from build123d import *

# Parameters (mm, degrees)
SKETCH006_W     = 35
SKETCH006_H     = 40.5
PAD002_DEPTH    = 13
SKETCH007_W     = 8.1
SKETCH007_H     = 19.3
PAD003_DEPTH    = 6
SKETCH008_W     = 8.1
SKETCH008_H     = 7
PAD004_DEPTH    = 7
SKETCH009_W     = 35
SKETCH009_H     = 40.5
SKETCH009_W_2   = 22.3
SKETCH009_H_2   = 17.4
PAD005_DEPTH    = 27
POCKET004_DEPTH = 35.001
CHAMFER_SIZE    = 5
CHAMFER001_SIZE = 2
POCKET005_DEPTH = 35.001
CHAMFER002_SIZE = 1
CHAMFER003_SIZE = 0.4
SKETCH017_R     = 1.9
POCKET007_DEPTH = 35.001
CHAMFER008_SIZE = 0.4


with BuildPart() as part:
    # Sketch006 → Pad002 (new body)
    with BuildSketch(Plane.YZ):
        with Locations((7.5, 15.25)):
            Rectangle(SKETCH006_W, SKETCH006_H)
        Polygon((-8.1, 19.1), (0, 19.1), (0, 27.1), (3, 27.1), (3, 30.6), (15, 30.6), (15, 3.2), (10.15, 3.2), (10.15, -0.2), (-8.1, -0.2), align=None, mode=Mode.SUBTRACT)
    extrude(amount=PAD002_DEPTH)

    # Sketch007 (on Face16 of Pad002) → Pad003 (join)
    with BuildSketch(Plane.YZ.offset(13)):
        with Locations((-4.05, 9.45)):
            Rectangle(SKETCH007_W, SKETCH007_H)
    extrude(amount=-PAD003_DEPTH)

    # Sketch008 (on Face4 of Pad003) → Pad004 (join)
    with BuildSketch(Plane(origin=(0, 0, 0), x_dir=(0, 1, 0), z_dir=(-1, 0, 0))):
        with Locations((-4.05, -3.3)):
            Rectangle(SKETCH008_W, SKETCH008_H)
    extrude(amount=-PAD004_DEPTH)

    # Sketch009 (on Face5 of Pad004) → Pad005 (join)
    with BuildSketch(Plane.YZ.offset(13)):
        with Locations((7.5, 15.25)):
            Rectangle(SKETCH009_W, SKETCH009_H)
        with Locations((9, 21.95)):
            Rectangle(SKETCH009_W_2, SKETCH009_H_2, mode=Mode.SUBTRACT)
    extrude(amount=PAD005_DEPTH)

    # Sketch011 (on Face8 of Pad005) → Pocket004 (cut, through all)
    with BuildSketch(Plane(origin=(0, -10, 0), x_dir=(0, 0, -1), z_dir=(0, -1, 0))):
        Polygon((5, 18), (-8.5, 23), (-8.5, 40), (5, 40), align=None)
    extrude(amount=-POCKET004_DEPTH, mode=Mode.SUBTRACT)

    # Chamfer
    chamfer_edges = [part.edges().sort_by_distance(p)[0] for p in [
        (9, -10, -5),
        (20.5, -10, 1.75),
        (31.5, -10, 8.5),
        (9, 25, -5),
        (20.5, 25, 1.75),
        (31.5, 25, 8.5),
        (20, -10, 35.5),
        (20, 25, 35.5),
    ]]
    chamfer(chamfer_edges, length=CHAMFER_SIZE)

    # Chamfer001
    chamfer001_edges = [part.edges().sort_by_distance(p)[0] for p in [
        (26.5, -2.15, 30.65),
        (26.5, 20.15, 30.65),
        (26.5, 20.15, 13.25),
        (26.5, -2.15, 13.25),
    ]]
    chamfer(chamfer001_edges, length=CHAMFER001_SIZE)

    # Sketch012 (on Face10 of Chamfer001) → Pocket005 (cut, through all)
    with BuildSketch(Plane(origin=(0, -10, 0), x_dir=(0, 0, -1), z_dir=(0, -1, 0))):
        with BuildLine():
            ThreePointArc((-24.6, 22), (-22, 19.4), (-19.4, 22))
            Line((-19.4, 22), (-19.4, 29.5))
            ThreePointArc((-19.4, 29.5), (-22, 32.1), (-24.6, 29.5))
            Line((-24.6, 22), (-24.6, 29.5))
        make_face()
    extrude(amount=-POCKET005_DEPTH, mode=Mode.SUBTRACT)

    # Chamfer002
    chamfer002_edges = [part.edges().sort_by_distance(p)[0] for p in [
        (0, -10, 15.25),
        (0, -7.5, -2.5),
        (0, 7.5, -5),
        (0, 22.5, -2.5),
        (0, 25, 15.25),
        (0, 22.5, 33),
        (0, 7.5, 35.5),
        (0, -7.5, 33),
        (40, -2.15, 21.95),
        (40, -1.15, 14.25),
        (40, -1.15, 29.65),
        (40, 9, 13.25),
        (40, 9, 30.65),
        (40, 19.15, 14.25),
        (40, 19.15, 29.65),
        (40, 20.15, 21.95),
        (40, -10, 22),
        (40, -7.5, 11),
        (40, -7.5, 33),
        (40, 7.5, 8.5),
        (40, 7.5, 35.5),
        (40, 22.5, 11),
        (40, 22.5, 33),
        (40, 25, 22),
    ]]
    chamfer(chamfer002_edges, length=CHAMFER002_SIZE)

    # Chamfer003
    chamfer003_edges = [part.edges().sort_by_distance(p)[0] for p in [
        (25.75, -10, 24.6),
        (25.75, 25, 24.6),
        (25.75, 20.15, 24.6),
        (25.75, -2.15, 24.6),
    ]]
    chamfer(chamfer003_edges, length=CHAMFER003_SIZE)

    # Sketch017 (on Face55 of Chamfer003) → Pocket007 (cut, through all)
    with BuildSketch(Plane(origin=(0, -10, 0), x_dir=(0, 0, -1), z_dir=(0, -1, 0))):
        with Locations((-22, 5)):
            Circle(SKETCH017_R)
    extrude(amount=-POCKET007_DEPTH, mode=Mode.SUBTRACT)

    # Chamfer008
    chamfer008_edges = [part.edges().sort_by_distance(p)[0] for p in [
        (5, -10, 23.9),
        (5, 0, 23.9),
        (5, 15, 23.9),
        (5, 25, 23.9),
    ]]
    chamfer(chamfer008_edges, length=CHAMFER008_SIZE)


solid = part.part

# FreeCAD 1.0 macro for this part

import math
import FreeCAD as App
import Part
import Sketcher
from FreeCAD import Vector


def edges_at(feature, points):
    """Names of the edges that pass closest to the given points."""
    edges = feature.Shape.Edges
    near = lambda p: min(range(len(edges)), key=lambda i: edges[i].distToShape(Part.Vertex(*p))[0])
    return sorted({f"Edge{near(p) + 1}" for p in points})


def add_polygon(sketch, points):
    """Adds a closed chain of lines whose ends are joined by coincident constraints."""
    first, n = sketch.GeometryCount, len(points)
    for a, b in zip(points, points[1:] + points[:1]):
        sketch.addGeometry(Part.LineSegment(App.Vector(*a, 0), App.Vector(*b, 0)), False)
    for i in range(n):
        sketch.addConstraint(Sketcher.Constraint("Coincident", first + i, 2, first + (i + 1) % n, 1))

doc = App.newDocument("Part")
body = doc.addObject("PartDesign::Body", "Body")

# Sketch on YZ plane
sketch1 = body.newObject("Sketcher::SketchObject", "Sketch")
sketch1.AttachmentSupport = (doc.getObject("YZ_Plane"), [""])
sketch1.MapMode = "FlatFace"
add_polygon(sketch1, [(-10, 35.5), (-10, -5), (25, -5), (25, 35.5)])  # lines 0-3
add_polygon(sketch1, [(-8.1, -0.2), (-8.1, 19.1), (0, 19.1), (0, 27.1), (3, 27.1), (3, 30.6), (15, 30.6), (15, 3.2), (10.15, 3.2), (10.15, -0.2)])  # lines 4-13
sketch1.addConstraint(Sketcher.Constraint("Vertical", 0))
sketch1.addConstraint(Sketcher.Constraint("Horizontal", 1))
sketch1.addConstraint(Sketcher.Constraint("Vertical", 2))
sketch1.addConstraint(Sketcher.Constraint("Horizontal", 3))
sketch1.addConstraint(Sketcher.Constraint("Vertical", 4))
sketch1.addConstraint(Sketcher.Constraint("Horizontal", 5))
sketch1.addConstraint(Sketcher.Constraint("Vertical", 6))
sketch1.addConstraint(Sketcher.Constraint("Horizontal", 7))
sketch1.addConstraint(Sketcher.Constraint("Vertical", 8))
sketch1.addConstraint(Sketcher.Constraint("Horizontal", 9))
sketch1.addConstraint(Sketcher.Constraint("Vertical", 10))
sketch1.addConstraint(Sketcher.Constraint("Horizontal", 11))
sketch1.addConstraint(Sketcher.Constraint("Vertical", 12))
sketch1.addConstraint(Sketcher.Constraint("Horizontal", 13))
sketch1.addConstraint(Sketcher.Constraint("PointOnObject", 5, 2, -2))
sketch1.addConstraint(Sketcher.Constraint("DistanceX", 1, 1, 1, 2, 35.0))
sketch1.addConstraint(Sketcher.Constraint("DistanceX", 7, 1, 7, 2, 3.0))
sketch1.addConstraint(Sketcher.Constraint("DistanceX", 9, 1, 9, 2, 12.0))
sketch1.addConstraint(Sketcher.Constraint("DistanceY", 6, 1, 6, 2, 8.0))
sketch1.addConstraint(Sketcher.Constraint("DistanceX", 5, 1, 5, 2, 8.1))
sketch1.addConstraint(Sketcher.Constraint("DistanceY", 0, 2, 0, 1, 40.5))
sketch1.addConstraint(Sketcher.Constraint("DistanceY", 4, 1, 4, 2, 19.3))
sketch1.addConstraint(Sketcher.Constraint("DistanceY", 8, 1, 8, 2, 3.5))
sketch1.addConstraint(Sketcher.Constraint("DistanceY", 10, 2, 10, 1, 27.4))
sketch1.addConstraint(Sketcher.Constraint("DistanceX", 0, 2, -1, 1, 10.0))
sketch1.addConstraint(Sketcher.Constraint("DistanceY", 0, 2, -1, 1, 5.0))
sketch1.addConstraint(Sketcher.Constraint("DistanceX", 11, 2, 11, 1, 4.85))
sketch1.addConstraint(Sketcher.Constraint("DistanceY", -1, 1, 4, 2, 19.1))
pad1 = body.newObject("PartDesign::Pad", "Pad")
pad1.Profile = sketch1
pad1.Length = 13

# Sketch on YZ plane
sketch2 = body.newObject("Sketcher::SketchObject", "Sketch001")
sketch2.AttachmentSupport = (doc.getObject("YZ_Plane"), [""])
sketch2.MapMode = "FlatFace"
sketch2.AttachmentOffset = App.Placement(Vector(0, 0, 13), App.Rotation())
add_polygon(sketch2, [(-8.1, 19.1), (-8.1, -0.2), (0, -0.2), (0, 19.1)])  # lines 0-3
sketch2.addConstraint(Sketcher.Constraint("Vertical", 0))
sketch2.addConstraint(Sketcher.Constraint("Horizontal", 1))
sketch2.addConstraint(Sketcher.Constraint("Vertical", 2))
sketch2.addConstraint(Sketcher.Constraint("Horizontal", 3))
sketch2.addConstraint(Sketcher.Constraint("PointOnObject", 1, 2, -2))
sketch2.addConstraint(Sketcher.Constraint("DistanceX", 1, 1, 1, 2, 8.1))
sketch2.addConstraint(Sketcher.Constraint("DistanceY", 0, 2, 0, 1, 19.3))
sketch2.addConstraint(Sketcher.Constraint("DistanceY", 0, 2, -1, 1, 0.2))
pad2 = body.newObject("PartDesign::Pad", "Pad001")
pad2.Profile = sketch2
pad2.Length = 6
pad2.Reversed = True

# Sketch on YZ plane
sketch3 = body.newObject("Sketcher::SketchObject", "Sketch002")
sketch3.AttachmentSupport = (doc.getObject("YZ_Plane"), [""])
sketch3.MapMode = "FlatFace"
add_polygon(sketch3, [(-8.1, -0.2), (-8.1, 6.8), (0, 6.8), (0, -0.2)])  # lines 0-3
sketch3.addConstraint(Sketcher.Constraint("Vertical", 0))
sketch3.addConstraint(Sketcher.Constraint("Horizontal", 1))
sketch3.addConstraint(Sketcher.Constraint("Vertical", 2))
sketch3.addConstraint(Sketcher.Constraint("Horizontal", 3))
sketch3.addConstraint(Sketcher.Constraint("PointOnObject", 1, 2, -2))
sketch3.addConstraint(Sketcher.Constraint("DistanceY", 0, 1, 0, 2, 7.0))
sketch3.addConstraint(Sketcher.Constraint("DistanceX", 1, 1, 1, 2, 8.1))
sketch3.addConstraint(Sketcher.Constraint("DistanceY", -1, 1, 0, 2, 6.8))
pad3 = body.newObject("PartDesign::Pad", "Pad002")
pad3.Profile = sketch3
pad3.Length = 7

# Sketch on YZ plane
sketch4 = body.newObject("Sketcher::SketchObject", "Sketch003")
sketch4.AttachmentSupport = (doc.getObject("YZ_Plane"), [""])
sketch4.MapMode = "FlatFace"
sketch4.AttachmentOffset = App.Placement(Vector(0, 0, 13), App.Rotation())
add_polygon(sketch4, [(-10, 35.5), (-10, -5), (25, -5), (25, 35.5)])  # lines 0-3
add_polygon(sketch4, [(20.15, 13.25), (-2.15, 13.25), (-2.15, 30.65), (20.15, 30.65)])  # lines 4-7
sketch4.addConstraint(Sketcher.Constraint("Vertical", 0))
sketch4.addConstraint(Sketcher.Constraint("Horizontal", 1))
sketch4.addConstraint(Sketcher.Constraint("Vertical", 2))
sketch4.addConstraint(Sketcher.Constraint("Horizontal", 3))
sketch4.addConstraint(Sketcher.Constraint("Horizontal", 4))
sketch4.addConstraint(Sketcher.Constraint("Vertical", 5))
sketch4.addConstraint(Sketcher.Constraint("Horizontal", 6))
sketch4.addConstraint(Sketcher.Constraint("Vertical", 7))
sketch4.addConstraint(Sketcher.Constraint("DistanceX", 1, 1, 1, 2, 35.0))
sketch4.addConstraint(Sketcher.Constraint("DistanceX", 4, 2, 4, 1, 22.3))
sketch4.addConstraint(Sketcher.Constraint("DistanceY", 0, 2, 0, 1, 40.5))
sketch4.addConstraint(Sketcher.Constraint("DistanceY", 5, 1, 5, 2, 17.4))
sketch4.addConstraint(Sketcher.Constraint("DistanceX", 0, 2, -1, 1, 10.0))
sketch4.addConstraint(Sketcher.Constraint("DistanceY", 0, 2, -1, 1, 5.0))
sketch4.addConstraint(Sketcher.Constraint("DistanceX", 4, 2, -1, 1, 2.15))
sketch4.addConstraint(Sketcher.Constraint("DistanceY", -1, 1, 4, 2, 13.25))
pad4 = body.newObject("PartDesign::Pad", "Pad003")
pad4.Profile = sketch4
pad4.Length = 27

# Sketch on XZ plane
sketch5 = body.newObject("Sketcher::SketchObject", "Sketch004")
sketch5.AttachmentSupport = (doc.getObject("XZ_Plane"), [""])
sketch5.MapMode = "FlatFace"
sketch5.AttachmentOffset = App.Placement(Vector(0, 0, 10), App.Rotation())
add_polygon(sketch5, [(23, 8.5), (18, -5), (40, -5), (40, 8.5)])  # lines 0-3
sketch5.addConstraint(Sketcher.Constraint("Horizontal", 1))
sketch5.addConstraint(Sketcher.Constraint("Vertical", 2))
sketch5.addConstraint(Sketcher.Constraint("Horizontal", 3))
sketch5.addConstraint(Sketcher.Constraint("DistanceX", 1, 1, 1, 2, 22.0))
sketch5.addConstraint(Sketcher.Constraint("DistanceX", 3, 2, 3, 1, 17.0))
sketch5.addConstraint(Sketcher.Constraint("DistanceY", 2, 1, 2, 2, 13.5))
sketch5.addConstraint(Sketcher.Constraint("DistanceX", -1, 1, 0, 2, 18.0))
sketch5.addConstraint(Sketcher.Constraint("DistanceY", 0, 2, -1, 1, 5.0))
pocket1 = body.newObject("PartDesign::Pocket", "Pocket")
pocket1.Profile = sketch5
pocket1.Type = "ThroughAll"
doc.recompute()

chamfer = body.newObject("PartDesign::Chamfer", "Chamfer")
chamfer.Base = (pocket1, edges_at(pocket1, [
    (9, -10, -5),
    (20.5, -10, 1.75),
    (31.5, -10, 8.5),
    (9, 25, -5),
    (20.5, 25, 1.75),
    (31.5, 25, 8.5),
    (20, -10, 35.5),
    (20, 25, 35.5),
]))
chamfer.Size = 5
doc.recompute()

chamfer2 = body.newObject("PartDesign::Chamfer", "Chamfer001")
chamfer2.Base = (chamfer, edges_at(chamfer, [
    (26.5, -2.15, 30.65),
    (26.5, 20.15, 30.65),
    (26.5, 20.15, 13.25),
    (26.5, -2.15, 13.25),
]))
chamfer2.Size = 2

# Sketch on XZ plane
sketch6 = body.newObject("Sketcher::SketchObject", "Sketch005")
sketch6.AttachmentSupport = (doc.getObject("XZ_Plane"), [""])
sketch6.MapMode = "FlatFace"
sketch6.AttachmentOffset = App.Placement(Vector(0, 0, 10), App.Rotation())
sketch6.addGeometry(Part.ArcOfCircle(Part.Circle(Vector(22, 22, 0), Vector(0, 0, 1), 2.6), math.radians(90), math.radians(270)), False)
sketch6.addGeometry(Part.LineSegment(Vector(22, 19.4, 0), Vector(29.5, 19.4, 0)), False)
sketch6.addGeometry(Part.ArcOfCircle(Part.Circle(Vector(29.5, 22, 0), Vector(0, 0, 1), 2.6), math.radians(-90), math.radians(90)), False)
sketch6.addGeometry(Part.LineSegment(Vector(29.5, 24.6, 0), Vector(22, 24.6, 0)), False)
sketch6.addConstraint(Sketcher.Constraint("Tangent", 0, 2, 1, 1))
sketch6.addConstraint(Sketcher.Constraint("Tangent", 1, 2, 2, 1))
sketch6.addConstraint(Sketcher.Constraint("Tangent", 2, 2, 3, 1))
sketch6.addConstraint(Sketcher.Constraint("Tangent", 3, 2, 0, 1))
sketch6.addConstraint(Sketcher.Constraint("Horizontal", 1))
sketch6.addConstraint(Sketcher.Constraint("Horizontal", 3))
sketch6.addConstraint(Sketcher.Constraint("Radius", 0, 2.6))
sketch6.addConstraint(Sketcher.Constraint("DistanceX", 1, 1, 1, 2, 7.5))
sketch6.addConstraint(Sketcher.Constraint("DistanceX", -1, 1, 0, 3, 22.0))
sketch6.addConstraint(Sketcher.Constraint("DistanceY", -1, 1, 0, 3, 22.0))
pocket2 = body.newObject("PartDesign::Pocket", "Pocket001")
pocket2.Profile = sketch6
pocket2.Type = "ThroughAll"
doc.recompute()

chamfer3 = body.newObject("PartDesign::Chamfer", "Chamfer002")
chamfer3.Base = (pocket2, edges_at(pocket2, [
    (0, -10, 15.25),
    (0, -7.5, -2.5),
    (0, 7.5, -5),
    (0, 22.5, -2.5),
    (0, 25, 15.25),
    (0, 22.5, 33),
    (0, 7.5, 35.5),
    (0, -7.5, 33),
    (40, -2.15, 21.95),
    (40, -1.15, 14.25),
    (40, -1.15, 29.65),
    (40, 9, 13.25),
    (40, 9, 30.65),
    (40, 19.15, 14.25),
    (40, 19.15, 29.65),
    (40, 20.15, 21.95),
    (40, -10, 22),
    (40, -7.5, 11),
    (40, -7.5, 33),
    (40, 7.5, 8.5),
    (40, 7.5, 35.5),
    (40, 22.5, 11),
    (40, 22.5, 33),
    (40, 25, 22),
]))
chamfer3.Size = 1
doc.recompute()

chamfer4 = body.newObject("PartDesign::Chamfer", "Chamfer003")
chamfer4.Base = (chamfer3, edges_at(chamfer3, [
    (25.75, -10, 24.6),
    (25.75, 25, 24.6),
    (25.75, 20.15, 24.6),
    (25.75, -2.15, 24.6),
]))
chamfer4.Size = 0.4

# Sketch on XZ plane
sketch7 = body.newObject("Sketcher::SketchObject", "Sketch006")
sketch7.AttachmentSupport = (doc.getObject("XZ_Plane"), [""])
sketch7.MapMode = "FlatFace"
sketch7.AttachmentOffset = App.Placement(Vector(0, 0, 10), App.Rotation())
sketch7.addGeometry(Part.Circle(Vector(5, 22, 0), Vector(0, 0, 1), 1.9), False)
sketch7.addConstraint(Sketcher.Constraint("Diameter", 0, 3.8))
sketch7.addConstraint(Sketcher.Constraint("DistanceX", -1, 1, 0, 3, 5.0))
sketch7.addConstraint(Sketcher.Constraint("DistanceY", -1, 1, 0, 3, 22.0))
pocket3 = body.newObject("PartDesign::Pocket", "Pocket002")
pocket3.Profile = sketch7
pocket3.Type = "ThroughAll"
doc.recompute()

chamfer5 = body.newObject("PartDesign::Chamfer", "Chamfer004")
chamfer5.Base = (pocket3, edges_at(pocket3, [
    (5, -10, 23.9),
    (5, 0, 23.9),
    (5, 15, 23.9),
    (5, 25, 23.9),
]))
chamfer5.Size = 0.4

doc.recompute()
